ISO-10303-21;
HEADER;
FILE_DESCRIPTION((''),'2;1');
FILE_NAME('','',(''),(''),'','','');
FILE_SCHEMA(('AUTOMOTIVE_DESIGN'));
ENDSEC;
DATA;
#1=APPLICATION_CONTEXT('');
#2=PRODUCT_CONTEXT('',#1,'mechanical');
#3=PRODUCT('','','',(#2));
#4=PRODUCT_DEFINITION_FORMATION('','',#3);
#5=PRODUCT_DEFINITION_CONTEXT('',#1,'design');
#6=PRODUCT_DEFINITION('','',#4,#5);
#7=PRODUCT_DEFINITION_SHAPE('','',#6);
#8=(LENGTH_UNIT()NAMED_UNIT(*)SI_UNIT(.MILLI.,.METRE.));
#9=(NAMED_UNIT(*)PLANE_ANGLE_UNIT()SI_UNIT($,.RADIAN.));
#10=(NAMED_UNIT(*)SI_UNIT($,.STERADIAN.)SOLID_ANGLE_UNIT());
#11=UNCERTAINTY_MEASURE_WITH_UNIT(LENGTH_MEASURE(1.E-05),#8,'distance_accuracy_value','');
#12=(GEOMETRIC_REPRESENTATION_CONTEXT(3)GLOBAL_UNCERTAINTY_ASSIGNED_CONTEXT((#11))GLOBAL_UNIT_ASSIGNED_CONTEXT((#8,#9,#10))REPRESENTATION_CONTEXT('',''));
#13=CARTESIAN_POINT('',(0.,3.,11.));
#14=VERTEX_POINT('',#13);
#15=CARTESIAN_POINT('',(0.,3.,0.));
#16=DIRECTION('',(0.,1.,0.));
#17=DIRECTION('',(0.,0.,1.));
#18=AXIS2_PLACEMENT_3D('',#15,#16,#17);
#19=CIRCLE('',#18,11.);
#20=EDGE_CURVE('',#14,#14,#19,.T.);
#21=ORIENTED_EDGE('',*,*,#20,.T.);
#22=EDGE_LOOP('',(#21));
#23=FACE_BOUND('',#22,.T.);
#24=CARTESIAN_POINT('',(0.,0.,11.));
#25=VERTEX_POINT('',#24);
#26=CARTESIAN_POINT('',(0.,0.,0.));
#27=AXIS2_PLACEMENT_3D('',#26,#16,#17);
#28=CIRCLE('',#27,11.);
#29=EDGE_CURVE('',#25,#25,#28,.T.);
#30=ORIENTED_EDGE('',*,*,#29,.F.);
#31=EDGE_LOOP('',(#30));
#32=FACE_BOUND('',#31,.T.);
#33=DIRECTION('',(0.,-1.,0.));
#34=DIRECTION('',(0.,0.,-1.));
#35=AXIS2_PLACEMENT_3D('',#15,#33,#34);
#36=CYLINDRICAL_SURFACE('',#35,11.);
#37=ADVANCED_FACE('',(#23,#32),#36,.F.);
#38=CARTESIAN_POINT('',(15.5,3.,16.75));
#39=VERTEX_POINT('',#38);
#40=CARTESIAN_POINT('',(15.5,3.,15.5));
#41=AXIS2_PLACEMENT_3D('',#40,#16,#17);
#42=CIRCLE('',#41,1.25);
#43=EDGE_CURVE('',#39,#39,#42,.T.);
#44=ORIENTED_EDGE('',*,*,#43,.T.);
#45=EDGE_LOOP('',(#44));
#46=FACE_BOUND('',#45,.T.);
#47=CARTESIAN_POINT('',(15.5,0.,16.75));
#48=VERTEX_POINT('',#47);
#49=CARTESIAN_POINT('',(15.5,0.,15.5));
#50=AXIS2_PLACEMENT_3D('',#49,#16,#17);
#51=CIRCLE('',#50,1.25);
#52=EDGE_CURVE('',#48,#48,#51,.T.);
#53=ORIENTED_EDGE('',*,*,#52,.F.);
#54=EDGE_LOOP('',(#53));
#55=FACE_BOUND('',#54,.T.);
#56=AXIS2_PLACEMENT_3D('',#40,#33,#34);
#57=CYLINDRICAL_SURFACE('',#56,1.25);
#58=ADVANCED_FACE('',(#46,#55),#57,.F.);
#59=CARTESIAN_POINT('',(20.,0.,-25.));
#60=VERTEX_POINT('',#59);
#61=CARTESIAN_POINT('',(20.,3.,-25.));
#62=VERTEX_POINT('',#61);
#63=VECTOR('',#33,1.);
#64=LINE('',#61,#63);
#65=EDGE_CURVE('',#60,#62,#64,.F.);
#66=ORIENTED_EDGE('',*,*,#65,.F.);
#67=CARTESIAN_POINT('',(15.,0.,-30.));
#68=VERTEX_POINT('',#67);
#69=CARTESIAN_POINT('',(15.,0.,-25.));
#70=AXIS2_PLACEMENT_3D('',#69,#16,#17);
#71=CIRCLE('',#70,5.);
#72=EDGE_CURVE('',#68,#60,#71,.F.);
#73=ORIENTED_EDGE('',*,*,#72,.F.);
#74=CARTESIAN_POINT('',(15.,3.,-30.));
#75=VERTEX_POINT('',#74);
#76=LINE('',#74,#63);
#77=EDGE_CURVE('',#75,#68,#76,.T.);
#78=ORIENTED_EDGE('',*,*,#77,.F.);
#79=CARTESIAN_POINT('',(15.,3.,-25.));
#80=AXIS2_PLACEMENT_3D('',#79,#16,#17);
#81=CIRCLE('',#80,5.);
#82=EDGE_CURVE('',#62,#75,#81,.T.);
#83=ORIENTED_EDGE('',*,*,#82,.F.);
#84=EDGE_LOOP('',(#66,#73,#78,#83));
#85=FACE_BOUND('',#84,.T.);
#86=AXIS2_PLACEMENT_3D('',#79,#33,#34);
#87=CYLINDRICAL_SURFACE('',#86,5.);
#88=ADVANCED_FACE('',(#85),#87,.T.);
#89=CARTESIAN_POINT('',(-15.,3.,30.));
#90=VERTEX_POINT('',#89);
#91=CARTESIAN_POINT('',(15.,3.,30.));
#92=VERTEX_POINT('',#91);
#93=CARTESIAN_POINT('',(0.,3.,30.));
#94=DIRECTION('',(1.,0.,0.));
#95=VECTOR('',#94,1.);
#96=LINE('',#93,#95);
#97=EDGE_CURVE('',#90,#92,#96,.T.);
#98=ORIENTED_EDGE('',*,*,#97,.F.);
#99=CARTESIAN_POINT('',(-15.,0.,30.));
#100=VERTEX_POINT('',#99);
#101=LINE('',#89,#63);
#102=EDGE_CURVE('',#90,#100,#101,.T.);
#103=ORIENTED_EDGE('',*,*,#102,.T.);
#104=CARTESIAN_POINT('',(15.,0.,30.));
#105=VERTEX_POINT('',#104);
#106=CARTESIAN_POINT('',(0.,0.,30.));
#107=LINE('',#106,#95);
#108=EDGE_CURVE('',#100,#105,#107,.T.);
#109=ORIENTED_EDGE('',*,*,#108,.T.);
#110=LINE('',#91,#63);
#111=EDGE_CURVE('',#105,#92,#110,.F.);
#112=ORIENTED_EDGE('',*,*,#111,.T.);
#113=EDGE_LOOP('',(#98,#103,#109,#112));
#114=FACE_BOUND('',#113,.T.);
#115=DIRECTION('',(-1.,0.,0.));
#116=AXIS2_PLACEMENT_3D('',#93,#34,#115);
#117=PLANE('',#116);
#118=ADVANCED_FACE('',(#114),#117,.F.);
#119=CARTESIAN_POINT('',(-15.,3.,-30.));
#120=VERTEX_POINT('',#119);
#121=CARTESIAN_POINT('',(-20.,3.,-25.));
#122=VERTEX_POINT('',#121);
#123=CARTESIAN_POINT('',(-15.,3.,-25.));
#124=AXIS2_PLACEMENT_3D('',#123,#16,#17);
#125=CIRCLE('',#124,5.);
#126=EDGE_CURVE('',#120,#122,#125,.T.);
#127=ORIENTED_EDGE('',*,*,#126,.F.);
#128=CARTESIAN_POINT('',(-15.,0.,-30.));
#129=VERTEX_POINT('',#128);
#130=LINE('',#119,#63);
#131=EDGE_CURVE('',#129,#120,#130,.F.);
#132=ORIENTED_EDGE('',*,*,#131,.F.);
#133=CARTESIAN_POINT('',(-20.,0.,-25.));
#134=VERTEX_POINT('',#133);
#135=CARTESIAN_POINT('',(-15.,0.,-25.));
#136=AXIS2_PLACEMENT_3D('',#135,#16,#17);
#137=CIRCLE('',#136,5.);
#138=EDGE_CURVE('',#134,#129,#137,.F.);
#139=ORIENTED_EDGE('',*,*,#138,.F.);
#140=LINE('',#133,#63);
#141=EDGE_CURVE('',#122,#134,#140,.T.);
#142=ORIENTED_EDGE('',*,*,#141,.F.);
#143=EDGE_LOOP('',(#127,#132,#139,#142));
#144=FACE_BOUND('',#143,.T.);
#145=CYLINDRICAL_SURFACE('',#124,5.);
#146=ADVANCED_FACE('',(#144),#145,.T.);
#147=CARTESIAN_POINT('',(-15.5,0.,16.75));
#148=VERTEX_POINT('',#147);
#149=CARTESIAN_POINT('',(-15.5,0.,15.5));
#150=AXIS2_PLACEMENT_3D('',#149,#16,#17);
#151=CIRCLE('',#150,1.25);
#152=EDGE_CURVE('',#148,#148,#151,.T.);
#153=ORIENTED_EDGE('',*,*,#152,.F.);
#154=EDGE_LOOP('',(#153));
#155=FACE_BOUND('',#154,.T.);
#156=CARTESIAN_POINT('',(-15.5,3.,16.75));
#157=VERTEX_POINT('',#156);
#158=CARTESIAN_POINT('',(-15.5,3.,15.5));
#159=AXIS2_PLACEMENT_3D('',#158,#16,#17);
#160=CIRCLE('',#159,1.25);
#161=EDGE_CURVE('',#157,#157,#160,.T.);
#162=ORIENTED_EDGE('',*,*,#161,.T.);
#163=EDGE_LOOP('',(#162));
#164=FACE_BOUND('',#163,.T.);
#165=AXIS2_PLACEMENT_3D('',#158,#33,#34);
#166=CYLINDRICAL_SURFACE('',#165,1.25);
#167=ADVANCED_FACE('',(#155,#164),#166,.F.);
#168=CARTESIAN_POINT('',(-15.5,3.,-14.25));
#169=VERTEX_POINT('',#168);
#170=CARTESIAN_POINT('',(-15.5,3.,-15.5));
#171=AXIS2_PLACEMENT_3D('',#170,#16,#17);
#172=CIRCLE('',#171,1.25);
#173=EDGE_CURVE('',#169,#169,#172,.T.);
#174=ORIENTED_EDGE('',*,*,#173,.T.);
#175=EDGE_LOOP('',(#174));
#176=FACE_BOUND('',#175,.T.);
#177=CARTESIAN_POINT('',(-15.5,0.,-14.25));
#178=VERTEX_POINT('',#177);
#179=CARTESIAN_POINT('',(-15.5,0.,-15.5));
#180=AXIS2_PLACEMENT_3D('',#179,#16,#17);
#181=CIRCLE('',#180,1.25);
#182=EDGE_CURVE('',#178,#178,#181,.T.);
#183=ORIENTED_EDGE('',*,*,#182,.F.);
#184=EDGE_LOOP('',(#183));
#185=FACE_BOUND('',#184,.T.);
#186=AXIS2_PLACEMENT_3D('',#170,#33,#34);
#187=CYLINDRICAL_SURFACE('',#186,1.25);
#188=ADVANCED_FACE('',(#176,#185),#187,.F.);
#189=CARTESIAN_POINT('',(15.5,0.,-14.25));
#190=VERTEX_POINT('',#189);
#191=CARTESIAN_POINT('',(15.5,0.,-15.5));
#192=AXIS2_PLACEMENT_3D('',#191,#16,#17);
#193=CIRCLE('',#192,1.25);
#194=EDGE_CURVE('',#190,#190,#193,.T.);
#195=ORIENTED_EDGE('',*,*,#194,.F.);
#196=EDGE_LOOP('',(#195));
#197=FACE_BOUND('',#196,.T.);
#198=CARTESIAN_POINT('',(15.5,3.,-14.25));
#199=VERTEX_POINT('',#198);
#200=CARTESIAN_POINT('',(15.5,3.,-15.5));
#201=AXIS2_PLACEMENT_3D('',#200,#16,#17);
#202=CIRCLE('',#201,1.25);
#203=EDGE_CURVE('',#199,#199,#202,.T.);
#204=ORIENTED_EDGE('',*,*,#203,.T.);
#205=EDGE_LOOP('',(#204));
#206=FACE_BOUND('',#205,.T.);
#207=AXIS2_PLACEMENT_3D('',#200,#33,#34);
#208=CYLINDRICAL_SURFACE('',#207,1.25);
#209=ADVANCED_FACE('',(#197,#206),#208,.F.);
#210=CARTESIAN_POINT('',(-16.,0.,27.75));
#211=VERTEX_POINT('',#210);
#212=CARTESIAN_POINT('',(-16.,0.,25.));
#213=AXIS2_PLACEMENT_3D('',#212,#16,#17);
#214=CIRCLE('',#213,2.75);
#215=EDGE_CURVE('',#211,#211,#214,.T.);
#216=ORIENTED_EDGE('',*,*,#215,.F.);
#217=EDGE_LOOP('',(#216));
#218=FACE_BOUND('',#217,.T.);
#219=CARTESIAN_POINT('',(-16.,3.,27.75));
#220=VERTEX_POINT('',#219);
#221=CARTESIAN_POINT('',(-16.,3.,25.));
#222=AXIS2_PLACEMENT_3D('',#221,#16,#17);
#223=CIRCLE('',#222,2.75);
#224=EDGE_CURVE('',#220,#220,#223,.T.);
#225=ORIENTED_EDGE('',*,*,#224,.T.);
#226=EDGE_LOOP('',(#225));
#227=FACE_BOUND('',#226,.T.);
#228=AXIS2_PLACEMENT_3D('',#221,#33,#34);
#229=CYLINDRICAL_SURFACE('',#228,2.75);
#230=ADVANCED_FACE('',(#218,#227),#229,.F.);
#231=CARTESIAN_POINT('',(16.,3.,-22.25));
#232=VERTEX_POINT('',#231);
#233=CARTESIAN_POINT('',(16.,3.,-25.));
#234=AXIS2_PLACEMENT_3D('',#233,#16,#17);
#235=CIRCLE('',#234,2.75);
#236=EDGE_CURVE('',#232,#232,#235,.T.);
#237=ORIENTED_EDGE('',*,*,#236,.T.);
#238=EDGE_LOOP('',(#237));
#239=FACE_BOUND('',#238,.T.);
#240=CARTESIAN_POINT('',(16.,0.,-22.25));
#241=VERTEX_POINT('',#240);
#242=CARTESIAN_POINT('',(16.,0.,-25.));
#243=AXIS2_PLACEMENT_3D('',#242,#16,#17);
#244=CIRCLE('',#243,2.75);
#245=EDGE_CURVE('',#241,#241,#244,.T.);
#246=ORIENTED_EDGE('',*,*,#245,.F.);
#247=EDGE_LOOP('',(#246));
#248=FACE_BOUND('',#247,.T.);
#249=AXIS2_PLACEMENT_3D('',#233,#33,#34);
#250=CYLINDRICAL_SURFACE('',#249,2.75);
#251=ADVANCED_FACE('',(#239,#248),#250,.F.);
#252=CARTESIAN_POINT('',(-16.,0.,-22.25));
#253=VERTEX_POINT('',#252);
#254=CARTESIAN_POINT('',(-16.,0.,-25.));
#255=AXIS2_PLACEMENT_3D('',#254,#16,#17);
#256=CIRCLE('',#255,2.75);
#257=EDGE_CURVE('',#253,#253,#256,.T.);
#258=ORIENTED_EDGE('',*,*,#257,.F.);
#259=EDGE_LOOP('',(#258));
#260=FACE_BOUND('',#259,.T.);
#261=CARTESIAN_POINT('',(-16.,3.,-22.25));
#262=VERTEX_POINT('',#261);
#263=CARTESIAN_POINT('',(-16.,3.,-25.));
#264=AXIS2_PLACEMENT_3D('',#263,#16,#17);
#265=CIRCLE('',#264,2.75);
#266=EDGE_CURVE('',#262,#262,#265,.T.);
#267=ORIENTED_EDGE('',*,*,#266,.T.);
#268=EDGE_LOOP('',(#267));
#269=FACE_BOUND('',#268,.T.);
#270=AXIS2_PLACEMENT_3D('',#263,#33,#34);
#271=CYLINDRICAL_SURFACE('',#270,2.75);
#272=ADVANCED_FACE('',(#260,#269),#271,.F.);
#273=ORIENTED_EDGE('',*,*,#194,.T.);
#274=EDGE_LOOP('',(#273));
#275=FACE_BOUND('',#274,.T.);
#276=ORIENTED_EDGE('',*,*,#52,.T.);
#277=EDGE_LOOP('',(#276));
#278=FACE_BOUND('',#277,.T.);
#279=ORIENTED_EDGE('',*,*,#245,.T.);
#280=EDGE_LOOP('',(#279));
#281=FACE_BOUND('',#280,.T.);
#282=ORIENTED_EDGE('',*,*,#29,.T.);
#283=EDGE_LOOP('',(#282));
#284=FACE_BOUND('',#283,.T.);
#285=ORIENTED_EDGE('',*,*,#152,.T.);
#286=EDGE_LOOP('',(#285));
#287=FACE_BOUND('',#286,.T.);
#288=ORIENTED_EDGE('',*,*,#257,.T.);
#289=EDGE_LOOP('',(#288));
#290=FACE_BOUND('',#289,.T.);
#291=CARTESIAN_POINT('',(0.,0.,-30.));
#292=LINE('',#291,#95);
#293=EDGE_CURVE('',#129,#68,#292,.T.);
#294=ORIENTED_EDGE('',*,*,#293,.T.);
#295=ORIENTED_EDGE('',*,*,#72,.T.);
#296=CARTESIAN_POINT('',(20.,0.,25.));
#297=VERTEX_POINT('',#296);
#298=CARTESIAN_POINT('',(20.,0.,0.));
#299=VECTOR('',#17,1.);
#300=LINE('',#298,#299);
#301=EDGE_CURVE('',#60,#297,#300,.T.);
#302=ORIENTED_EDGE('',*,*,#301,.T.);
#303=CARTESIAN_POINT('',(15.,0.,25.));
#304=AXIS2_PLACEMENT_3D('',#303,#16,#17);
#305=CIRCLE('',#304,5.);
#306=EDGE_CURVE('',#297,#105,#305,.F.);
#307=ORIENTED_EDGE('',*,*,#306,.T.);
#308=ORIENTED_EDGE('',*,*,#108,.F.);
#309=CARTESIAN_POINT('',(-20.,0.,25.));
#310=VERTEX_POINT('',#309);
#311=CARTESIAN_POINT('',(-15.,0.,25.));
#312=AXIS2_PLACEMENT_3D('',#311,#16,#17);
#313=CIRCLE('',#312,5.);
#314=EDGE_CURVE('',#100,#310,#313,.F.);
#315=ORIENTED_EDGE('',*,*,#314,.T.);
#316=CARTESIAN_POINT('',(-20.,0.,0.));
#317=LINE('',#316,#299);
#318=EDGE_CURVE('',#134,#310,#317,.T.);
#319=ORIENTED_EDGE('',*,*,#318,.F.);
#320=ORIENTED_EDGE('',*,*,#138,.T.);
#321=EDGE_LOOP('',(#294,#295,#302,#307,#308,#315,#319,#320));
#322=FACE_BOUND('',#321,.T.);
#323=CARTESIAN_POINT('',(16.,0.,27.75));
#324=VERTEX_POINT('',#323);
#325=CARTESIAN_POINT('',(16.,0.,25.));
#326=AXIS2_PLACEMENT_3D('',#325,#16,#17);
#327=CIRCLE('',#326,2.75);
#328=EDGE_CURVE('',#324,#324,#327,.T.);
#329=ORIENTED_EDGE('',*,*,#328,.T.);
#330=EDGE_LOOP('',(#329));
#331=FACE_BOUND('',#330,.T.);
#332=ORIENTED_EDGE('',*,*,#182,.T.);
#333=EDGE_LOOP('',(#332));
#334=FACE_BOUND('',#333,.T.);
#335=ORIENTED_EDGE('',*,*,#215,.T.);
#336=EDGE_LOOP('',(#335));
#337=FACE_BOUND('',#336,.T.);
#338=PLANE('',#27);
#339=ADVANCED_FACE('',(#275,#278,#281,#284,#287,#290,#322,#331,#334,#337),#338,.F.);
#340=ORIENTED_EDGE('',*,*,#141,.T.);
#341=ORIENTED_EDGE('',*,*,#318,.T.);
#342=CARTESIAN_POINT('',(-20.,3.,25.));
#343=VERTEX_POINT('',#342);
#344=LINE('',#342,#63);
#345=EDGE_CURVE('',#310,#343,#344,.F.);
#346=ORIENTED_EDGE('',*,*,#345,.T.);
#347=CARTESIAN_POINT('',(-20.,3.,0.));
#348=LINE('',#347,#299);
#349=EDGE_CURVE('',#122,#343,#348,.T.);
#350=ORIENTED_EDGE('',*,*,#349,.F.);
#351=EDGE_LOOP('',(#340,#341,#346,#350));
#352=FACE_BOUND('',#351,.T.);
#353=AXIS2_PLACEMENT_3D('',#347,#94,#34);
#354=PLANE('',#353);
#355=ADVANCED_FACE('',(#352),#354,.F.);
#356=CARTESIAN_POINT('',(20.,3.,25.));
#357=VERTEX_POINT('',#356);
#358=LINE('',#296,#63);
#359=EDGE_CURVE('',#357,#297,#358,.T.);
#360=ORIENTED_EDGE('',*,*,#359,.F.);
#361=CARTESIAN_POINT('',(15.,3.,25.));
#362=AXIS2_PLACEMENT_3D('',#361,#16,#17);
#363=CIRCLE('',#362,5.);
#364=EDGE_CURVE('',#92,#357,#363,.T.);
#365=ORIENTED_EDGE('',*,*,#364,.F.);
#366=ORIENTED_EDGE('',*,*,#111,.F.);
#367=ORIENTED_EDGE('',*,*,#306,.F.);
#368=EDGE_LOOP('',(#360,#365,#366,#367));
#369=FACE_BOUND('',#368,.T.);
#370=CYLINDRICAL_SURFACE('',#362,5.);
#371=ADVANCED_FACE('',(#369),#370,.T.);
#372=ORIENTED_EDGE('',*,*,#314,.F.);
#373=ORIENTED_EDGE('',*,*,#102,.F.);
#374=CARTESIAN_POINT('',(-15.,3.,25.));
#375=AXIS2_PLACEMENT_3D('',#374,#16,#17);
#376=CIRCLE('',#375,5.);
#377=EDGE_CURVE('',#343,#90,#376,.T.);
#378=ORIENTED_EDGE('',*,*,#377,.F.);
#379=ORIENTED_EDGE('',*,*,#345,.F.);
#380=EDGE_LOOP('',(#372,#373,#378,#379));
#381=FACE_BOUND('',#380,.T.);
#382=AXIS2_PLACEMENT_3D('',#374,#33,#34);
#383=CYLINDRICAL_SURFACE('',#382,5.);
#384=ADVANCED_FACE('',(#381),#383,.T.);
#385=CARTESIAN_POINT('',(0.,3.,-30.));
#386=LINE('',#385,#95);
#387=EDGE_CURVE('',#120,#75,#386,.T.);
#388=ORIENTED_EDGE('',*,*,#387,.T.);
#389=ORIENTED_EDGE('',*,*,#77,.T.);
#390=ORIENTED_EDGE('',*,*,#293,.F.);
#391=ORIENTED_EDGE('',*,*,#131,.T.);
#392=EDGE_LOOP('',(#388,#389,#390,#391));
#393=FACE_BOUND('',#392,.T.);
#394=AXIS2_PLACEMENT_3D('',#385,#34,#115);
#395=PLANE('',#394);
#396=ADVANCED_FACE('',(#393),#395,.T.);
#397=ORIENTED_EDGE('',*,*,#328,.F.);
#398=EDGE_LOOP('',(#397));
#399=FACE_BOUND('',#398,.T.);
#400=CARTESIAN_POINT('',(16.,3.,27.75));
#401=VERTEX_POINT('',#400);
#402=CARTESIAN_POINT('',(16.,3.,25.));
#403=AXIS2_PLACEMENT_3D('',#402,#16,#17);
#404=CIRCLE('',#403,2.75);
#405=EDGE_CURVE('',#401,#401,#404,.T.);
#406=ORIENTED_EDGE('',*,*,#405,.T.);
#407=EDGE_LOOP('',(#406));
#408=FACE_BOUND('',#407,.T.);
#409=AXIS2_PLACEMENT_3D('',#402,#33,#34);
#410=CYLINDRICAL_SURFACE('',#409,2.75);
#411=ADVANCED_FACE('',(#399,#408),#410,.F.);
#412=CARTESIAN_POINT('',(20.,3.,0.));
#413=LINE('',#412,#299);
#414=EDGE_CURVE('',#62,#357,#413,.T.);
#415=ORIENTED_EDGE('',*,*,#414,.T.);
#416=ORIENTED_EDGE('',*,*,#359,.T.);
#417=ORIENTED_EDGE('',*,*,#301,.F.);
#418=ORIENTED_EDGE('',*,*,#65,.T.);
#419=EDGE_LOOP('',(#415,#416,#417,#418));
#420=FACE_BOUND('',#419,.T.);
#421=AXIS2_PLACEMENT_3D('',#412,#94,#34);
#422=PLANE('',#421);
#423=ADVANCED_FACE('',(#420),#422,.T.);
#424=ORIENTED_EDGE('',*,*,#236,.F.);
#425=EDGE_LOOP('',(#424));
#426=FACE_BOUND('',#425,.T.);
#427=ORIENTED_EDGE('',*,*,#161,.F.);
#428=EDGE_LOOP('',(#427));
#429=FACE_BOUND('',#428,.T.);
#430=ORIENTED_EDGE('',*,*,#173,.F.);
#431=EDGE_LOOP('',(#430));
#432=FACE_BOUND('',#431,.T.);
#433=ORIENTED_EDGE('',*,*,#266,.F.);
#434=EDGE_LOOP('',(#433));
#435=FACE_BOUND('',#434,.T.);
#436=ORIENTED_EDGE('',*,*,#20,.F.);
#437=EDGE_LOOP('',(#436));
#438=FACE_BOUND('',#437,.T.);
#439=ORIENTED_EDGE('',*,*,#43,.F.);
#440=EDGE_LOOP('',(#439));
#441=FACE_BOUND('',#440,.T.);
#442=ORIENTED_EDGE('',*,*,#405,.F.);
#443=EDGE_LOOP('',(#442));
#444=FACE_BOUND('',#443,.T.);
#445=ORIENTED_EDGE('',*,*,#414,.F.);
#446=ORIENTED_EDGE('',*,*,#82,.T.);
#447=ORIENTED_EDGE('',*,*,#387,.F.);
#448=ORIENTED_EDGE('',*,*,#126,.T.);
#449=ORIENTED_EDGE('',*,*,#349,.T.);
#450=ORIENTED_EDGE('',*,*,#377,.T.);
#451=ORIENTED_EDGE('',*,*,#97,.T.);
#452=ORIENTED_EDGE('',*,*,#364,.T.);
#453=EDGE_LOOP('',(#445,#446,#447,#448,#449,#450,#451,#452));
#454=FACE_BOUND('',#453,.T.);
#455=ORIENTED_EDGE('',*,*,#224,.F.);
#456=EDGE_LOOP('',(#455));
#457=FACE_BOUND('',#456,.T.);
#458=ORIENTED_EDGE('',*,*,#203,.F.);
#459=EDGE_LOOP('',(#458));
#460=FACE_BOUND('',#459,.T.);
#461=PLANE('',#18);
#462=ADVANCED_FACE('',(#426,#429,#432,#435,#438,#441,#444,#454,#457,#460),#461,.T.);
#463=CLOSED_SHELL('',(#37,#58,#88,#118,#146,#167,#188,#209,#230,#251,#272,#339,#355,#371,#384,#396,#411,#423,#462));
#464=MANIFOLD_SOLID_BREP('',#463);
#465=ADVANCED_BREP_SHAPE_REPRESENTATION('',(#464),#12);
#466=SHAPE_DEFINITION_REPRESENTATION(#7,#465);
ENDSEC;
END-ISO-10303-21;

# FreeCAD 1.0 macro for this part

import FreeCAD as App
import Part
import Sketcher
Q = App.Units.Quantity


def edges_at(feature, points):
    """Names of the edges that pass closest to the given points."""
    edges = feature.Shape.Edges
    near = lambda p: min(range(len(edges)), key=lambda i: edges[i].distToShape(Part.Vertex(*p))[0])
    return sorted({f"Edge{near(p) + 1}" for p in points})


def add_polygon(sketch, points):
    """Adds a closed chain of lines whose ends are joined by coincident constraints."""
    first, n = sketch.GeometryCount, len(points)
    for a, b in zip(points, points[1:] + points[:1]):
        sketch.addGeometry(Part.LineSegment(App.Vector(*a, 0), App.Vector(*b, 0)), False)
    for i in range(n):
        sketch.addConstraint(Sketcher.Constraint("Coincident", first + i, 2, first + (i + 1) % n, 1))

doc = App.newDocument("Part")
body = doc.addObject("PartDesign::Body", "Body")

sketch1 = body.newObject("Sketcher::SketchObject", "Sketch")
sketch1.AttachmentSupport = (doc.getObject("XZ_Plane"), [""])
sketch1.MapMode = "FlatFace"
add_polygon(sketch1, [(-20, -30), (-20, 30), (20, 30), (20, -30)])
sketch1.addGeometry(Part.Circle(App.Vector(-16, 25, 0), App.Vector(0, 0, 1), 2.75), False)
sketch1.addGeometry(Part.Circle(App.Vector(-15.5, 15.5, 0), App.Vector(0, 0, 1), 1.25), False)
sketch1.addGeometry(Part.Circle(App.Vector(16, 25, 0), App.Vector(0, 0, 1), 2.75), False)
sketch1.addGeometry(Part.Circle(App.Vector(15.5, 15.5, 0), App.Vector(0, 0, 1), 1.25), False)
sketch1.addGeometry(Part.Circle(App.Vector(-15.5, -15.5, 0), App.Vector(0, 0, 1), 1.25), False)
sketch1.addGeometry(Part.Circle(App.Vector(-16, -25, 0), App.Vector(0, 0, 1), 2.75), False)
sketch1.addGeometry(Part.Circle(App.Vector(0, 0, 0), App.Vector(0, 0, 1), 11), False)
sketch1.addGeometry(Part.Circle(App.Vector(15.5, -15.5, 0), App.Vector(0, 0, 1), 1.25), False)
sketch1.addGeometry(Part.Circle(App.Vector(16, -25, 0), App.Vector(0, 0, 1), 2.75), False)
sketch1.addConstraint([
    Sketcher.Constraint("Vertical", 0),
    Sketcher.Constraint("Horizontal", 1),
    Sketcher.Constraint("Vertical", 2),
    Sketcher.Constraint("Horizontal", 3),
    Sketcher.Constraint("Coincident", 10, 3, -1, 1),
    Sketcher.Constraint("Equal", 4, 6),
    Sketcher.Constraint("Equal", 5, 7),
    Sketcher.Constraint("Equal", 7, 8),
    Sketcher.Constraint("Equal", 6, 9),
    Sketcher.Constraint("Equal", 8, 11),
    Sketcher.Constraint("Equal", 9, 12),
    Sketcher.Constraint("Symmetric", 7, 3, 8, 3, -1, 1),
    Sketcher.Constraint("Symmetric", 6, 3, 9, 3, -1, 1),
    Sketcher.Constraint("Symmetric", 5, 3, 11, 3, -1, 1),
    Sketcher.Constraint("Symmetric", 4, 3, 12, 3, -1, 1),
    Sketcher.Constraint("Symmetric", 0, 2, 2, 2, -1, 1),
    Sketcher.Constraint("Symmetric", 4, 3, 6, 3, -2),
    Sketcher.Constraint("Symmetric", 5, 3, 7, 3, -2),
    Sketcher.Constraint("Diameter", 10, Q("22 mm")),
    Sketcher.Constraint("Diameter", 4, Q("5.5 mm")),
    Sketcher.Constraint("Diameter", 5, Q("2.5 mm")),
    Sketcher.Constraint("DistanceX", 1, 1, 1, 2, Q("40 mm")),
    Sketcher.Constraint("DistanceY", 0, 1, 0, 2, Q("60 mm")),
    Sketcher.Constraint("DistanceX", 4, 3, -1, 1, Q("16 mm")),
    Sketcher.Constraint("DistanceY", -1, 1, 4, 3, Q("25 mm")),
    Sketcher.Constraint("DistanceX", 5, 3, 7, 3, Q("31 mm")),
    Sketcher.Constraint("DistanceY", 8, 3, 5, 3, Q("31 mm")),
])
pad1 = body.newObject("PartDesign::Pad", "Pad")
pad1.Profile = sketch1
pad1.Length = 3
pad1.Reversed = True
doc.recompute()

fillet = body.newObject("PartDesign::Fillet", "Fillet")
fillet.Base = (pad1, edges_at(pad1, [
    (20, 1.5, 30),
    (-20, 1.5, 30),
    (-20, 1.5, -30),
    (20, 1.5, -30),
]))
fillet.Radius = 5

doc.recompute()
